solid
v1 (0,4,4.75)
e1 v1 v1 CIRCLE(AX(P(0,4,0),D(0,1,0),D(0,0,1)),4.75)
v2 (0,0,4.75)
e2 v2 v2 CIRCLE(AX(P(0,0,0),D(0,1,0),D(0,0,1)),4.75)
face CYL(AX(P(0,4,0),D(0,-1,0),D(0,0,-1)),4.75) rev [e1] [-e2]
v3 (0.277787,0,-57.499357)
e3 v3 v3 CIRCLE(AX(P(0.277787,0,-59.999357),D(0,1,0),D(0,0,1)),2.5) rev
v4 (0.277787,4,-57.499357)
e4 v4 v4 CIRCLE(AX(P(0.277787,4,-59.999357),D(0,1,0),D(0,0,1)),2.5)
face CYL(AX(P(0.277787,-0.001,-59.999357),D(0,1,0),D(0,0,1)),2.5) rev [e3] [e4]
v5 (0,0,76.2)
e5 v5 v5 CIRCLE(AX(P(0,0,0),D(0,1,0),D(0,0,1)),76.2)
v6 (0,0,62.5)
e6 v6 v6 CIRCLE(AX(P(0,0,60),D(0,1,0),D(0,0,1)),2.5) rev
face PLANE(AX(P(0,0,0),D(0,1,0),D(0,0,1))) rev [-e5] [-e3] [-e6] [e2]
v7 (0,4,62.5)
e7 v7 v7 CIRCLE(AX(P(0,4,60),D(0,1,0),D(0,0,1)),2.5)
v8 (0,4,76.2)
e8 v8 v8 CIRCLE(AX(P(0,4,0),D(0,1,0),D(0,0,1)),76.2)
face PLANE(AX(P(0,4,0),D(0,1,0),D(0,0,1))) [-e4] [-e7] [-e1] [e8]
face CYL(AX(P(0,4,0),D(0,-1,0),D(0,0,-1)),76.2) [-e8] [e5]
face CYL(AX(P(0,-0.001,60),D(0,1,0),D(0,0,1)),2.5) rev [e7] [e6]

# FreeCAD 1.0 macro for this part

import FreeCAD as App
import Part
import Sketcher
from FreeCAD import Vector
Q = App.Units.Quantity

doc = App.newDocument("Part")
body = doc.addObject("PartDesign::Body", "Body")

# Sketch on XZ plane
sketch1 = body.newObject("Sketcher::SketchObject", "Sketch")
sketch1.AttachmentSupport = (doc.getObject("XZ_Plane"), [""])
sketch1.MapMode = "FlatFace"
sketch1.addGeometry([
    Part.Circle(Vector(0, 0, 0), Vector(0, 0, 1), 76.2),
    Part.Circle(Vector(0, 0, 0), Vector(0, 0, 1), 4.75),
], False)
sketch1.addConstraint([
    Sketcher.Constraint("Coincident", 0, 3, -1, 1),
    Sketcher.Constraint("Coincident", 1, 3, -1, 1),
    Sketcher.Constraint("Diameter", 0, Q("152.4 mm")),
    Sketcher.Constraint("Diameter", 1, Q("9.5 mm")),
])
pad1 = body.newObject("PartDesign::Pad", "Pad")
pad1.Profile = sketch1
pad1.Length = 4
pad1.Reversed = True

# Sketch on XZ plane
sketch2 = body.newObject("Sketcher::SketchObject", "Sketch001")
sketch2.AttachmentSupport = (doc.getObject("XZ_Plane"), [""])
sketch2.MapMode = "FlatFace"
sketch2.AttachmentOffset = App.Placement(Vector(0, 0, -4), App.Rotation())
sketch2.addGeometry(Part.Circle(Vector(0, 60, 0), Vector(0, 0, 1), 2.5), False)
sketch2.addConstraint([
    Sketcher.Constraint("PointOnObject", 0, 3, -2),
    Sketcher.Constraint("Diameter", 0, Q("5 mm")),
    Sketcher.Constraint("DistanceY", -1, 1, 0, 3, Q("60 mm")),
])
pocket1 = body.newObject("PartDesign::Pocket", "Pocket")
pocket1.Profile = sketch2
pocket1.Type = "UpToFirst"
pocket1.Reversed = True

# Sketch on XZ plane
sketch3 = body.newObject("Sketcher::SketchObject", "Sketch002")
sketch3.AttachmentSupport = (doc.getObject("XZ_Plane"), [""])
sketch3.MapMode = "FlatFace"
sketch3.AttachmentOffset = App.Placement(Vector(0, 0, -4), App.Rotation())
sketch3.addGeometry(Part.Circle(Vector(0.277787, -59.999357, 0), Vector(0, 0, 1), 2.5), False)
sketch3.addConstraint([
    Sketcher.Constraint("Diameter", 0, Q("5 mm")),
    Sketcher.Constraint("DistanceX", -1, 1, 0, 3, Q("0.277787 mm")),
    Sketcher.Constraint("DistanceY", 0, 3, -1, 1, Q("59.999357 mm")),
])
pocket2 = body.newObject("PartDesign::Pocket", "Pocket001")
pocket2.Profile = sketch3
pocket2.Type = "UpToFirst"
pocket2.Reversed = True

doc.recompute()
